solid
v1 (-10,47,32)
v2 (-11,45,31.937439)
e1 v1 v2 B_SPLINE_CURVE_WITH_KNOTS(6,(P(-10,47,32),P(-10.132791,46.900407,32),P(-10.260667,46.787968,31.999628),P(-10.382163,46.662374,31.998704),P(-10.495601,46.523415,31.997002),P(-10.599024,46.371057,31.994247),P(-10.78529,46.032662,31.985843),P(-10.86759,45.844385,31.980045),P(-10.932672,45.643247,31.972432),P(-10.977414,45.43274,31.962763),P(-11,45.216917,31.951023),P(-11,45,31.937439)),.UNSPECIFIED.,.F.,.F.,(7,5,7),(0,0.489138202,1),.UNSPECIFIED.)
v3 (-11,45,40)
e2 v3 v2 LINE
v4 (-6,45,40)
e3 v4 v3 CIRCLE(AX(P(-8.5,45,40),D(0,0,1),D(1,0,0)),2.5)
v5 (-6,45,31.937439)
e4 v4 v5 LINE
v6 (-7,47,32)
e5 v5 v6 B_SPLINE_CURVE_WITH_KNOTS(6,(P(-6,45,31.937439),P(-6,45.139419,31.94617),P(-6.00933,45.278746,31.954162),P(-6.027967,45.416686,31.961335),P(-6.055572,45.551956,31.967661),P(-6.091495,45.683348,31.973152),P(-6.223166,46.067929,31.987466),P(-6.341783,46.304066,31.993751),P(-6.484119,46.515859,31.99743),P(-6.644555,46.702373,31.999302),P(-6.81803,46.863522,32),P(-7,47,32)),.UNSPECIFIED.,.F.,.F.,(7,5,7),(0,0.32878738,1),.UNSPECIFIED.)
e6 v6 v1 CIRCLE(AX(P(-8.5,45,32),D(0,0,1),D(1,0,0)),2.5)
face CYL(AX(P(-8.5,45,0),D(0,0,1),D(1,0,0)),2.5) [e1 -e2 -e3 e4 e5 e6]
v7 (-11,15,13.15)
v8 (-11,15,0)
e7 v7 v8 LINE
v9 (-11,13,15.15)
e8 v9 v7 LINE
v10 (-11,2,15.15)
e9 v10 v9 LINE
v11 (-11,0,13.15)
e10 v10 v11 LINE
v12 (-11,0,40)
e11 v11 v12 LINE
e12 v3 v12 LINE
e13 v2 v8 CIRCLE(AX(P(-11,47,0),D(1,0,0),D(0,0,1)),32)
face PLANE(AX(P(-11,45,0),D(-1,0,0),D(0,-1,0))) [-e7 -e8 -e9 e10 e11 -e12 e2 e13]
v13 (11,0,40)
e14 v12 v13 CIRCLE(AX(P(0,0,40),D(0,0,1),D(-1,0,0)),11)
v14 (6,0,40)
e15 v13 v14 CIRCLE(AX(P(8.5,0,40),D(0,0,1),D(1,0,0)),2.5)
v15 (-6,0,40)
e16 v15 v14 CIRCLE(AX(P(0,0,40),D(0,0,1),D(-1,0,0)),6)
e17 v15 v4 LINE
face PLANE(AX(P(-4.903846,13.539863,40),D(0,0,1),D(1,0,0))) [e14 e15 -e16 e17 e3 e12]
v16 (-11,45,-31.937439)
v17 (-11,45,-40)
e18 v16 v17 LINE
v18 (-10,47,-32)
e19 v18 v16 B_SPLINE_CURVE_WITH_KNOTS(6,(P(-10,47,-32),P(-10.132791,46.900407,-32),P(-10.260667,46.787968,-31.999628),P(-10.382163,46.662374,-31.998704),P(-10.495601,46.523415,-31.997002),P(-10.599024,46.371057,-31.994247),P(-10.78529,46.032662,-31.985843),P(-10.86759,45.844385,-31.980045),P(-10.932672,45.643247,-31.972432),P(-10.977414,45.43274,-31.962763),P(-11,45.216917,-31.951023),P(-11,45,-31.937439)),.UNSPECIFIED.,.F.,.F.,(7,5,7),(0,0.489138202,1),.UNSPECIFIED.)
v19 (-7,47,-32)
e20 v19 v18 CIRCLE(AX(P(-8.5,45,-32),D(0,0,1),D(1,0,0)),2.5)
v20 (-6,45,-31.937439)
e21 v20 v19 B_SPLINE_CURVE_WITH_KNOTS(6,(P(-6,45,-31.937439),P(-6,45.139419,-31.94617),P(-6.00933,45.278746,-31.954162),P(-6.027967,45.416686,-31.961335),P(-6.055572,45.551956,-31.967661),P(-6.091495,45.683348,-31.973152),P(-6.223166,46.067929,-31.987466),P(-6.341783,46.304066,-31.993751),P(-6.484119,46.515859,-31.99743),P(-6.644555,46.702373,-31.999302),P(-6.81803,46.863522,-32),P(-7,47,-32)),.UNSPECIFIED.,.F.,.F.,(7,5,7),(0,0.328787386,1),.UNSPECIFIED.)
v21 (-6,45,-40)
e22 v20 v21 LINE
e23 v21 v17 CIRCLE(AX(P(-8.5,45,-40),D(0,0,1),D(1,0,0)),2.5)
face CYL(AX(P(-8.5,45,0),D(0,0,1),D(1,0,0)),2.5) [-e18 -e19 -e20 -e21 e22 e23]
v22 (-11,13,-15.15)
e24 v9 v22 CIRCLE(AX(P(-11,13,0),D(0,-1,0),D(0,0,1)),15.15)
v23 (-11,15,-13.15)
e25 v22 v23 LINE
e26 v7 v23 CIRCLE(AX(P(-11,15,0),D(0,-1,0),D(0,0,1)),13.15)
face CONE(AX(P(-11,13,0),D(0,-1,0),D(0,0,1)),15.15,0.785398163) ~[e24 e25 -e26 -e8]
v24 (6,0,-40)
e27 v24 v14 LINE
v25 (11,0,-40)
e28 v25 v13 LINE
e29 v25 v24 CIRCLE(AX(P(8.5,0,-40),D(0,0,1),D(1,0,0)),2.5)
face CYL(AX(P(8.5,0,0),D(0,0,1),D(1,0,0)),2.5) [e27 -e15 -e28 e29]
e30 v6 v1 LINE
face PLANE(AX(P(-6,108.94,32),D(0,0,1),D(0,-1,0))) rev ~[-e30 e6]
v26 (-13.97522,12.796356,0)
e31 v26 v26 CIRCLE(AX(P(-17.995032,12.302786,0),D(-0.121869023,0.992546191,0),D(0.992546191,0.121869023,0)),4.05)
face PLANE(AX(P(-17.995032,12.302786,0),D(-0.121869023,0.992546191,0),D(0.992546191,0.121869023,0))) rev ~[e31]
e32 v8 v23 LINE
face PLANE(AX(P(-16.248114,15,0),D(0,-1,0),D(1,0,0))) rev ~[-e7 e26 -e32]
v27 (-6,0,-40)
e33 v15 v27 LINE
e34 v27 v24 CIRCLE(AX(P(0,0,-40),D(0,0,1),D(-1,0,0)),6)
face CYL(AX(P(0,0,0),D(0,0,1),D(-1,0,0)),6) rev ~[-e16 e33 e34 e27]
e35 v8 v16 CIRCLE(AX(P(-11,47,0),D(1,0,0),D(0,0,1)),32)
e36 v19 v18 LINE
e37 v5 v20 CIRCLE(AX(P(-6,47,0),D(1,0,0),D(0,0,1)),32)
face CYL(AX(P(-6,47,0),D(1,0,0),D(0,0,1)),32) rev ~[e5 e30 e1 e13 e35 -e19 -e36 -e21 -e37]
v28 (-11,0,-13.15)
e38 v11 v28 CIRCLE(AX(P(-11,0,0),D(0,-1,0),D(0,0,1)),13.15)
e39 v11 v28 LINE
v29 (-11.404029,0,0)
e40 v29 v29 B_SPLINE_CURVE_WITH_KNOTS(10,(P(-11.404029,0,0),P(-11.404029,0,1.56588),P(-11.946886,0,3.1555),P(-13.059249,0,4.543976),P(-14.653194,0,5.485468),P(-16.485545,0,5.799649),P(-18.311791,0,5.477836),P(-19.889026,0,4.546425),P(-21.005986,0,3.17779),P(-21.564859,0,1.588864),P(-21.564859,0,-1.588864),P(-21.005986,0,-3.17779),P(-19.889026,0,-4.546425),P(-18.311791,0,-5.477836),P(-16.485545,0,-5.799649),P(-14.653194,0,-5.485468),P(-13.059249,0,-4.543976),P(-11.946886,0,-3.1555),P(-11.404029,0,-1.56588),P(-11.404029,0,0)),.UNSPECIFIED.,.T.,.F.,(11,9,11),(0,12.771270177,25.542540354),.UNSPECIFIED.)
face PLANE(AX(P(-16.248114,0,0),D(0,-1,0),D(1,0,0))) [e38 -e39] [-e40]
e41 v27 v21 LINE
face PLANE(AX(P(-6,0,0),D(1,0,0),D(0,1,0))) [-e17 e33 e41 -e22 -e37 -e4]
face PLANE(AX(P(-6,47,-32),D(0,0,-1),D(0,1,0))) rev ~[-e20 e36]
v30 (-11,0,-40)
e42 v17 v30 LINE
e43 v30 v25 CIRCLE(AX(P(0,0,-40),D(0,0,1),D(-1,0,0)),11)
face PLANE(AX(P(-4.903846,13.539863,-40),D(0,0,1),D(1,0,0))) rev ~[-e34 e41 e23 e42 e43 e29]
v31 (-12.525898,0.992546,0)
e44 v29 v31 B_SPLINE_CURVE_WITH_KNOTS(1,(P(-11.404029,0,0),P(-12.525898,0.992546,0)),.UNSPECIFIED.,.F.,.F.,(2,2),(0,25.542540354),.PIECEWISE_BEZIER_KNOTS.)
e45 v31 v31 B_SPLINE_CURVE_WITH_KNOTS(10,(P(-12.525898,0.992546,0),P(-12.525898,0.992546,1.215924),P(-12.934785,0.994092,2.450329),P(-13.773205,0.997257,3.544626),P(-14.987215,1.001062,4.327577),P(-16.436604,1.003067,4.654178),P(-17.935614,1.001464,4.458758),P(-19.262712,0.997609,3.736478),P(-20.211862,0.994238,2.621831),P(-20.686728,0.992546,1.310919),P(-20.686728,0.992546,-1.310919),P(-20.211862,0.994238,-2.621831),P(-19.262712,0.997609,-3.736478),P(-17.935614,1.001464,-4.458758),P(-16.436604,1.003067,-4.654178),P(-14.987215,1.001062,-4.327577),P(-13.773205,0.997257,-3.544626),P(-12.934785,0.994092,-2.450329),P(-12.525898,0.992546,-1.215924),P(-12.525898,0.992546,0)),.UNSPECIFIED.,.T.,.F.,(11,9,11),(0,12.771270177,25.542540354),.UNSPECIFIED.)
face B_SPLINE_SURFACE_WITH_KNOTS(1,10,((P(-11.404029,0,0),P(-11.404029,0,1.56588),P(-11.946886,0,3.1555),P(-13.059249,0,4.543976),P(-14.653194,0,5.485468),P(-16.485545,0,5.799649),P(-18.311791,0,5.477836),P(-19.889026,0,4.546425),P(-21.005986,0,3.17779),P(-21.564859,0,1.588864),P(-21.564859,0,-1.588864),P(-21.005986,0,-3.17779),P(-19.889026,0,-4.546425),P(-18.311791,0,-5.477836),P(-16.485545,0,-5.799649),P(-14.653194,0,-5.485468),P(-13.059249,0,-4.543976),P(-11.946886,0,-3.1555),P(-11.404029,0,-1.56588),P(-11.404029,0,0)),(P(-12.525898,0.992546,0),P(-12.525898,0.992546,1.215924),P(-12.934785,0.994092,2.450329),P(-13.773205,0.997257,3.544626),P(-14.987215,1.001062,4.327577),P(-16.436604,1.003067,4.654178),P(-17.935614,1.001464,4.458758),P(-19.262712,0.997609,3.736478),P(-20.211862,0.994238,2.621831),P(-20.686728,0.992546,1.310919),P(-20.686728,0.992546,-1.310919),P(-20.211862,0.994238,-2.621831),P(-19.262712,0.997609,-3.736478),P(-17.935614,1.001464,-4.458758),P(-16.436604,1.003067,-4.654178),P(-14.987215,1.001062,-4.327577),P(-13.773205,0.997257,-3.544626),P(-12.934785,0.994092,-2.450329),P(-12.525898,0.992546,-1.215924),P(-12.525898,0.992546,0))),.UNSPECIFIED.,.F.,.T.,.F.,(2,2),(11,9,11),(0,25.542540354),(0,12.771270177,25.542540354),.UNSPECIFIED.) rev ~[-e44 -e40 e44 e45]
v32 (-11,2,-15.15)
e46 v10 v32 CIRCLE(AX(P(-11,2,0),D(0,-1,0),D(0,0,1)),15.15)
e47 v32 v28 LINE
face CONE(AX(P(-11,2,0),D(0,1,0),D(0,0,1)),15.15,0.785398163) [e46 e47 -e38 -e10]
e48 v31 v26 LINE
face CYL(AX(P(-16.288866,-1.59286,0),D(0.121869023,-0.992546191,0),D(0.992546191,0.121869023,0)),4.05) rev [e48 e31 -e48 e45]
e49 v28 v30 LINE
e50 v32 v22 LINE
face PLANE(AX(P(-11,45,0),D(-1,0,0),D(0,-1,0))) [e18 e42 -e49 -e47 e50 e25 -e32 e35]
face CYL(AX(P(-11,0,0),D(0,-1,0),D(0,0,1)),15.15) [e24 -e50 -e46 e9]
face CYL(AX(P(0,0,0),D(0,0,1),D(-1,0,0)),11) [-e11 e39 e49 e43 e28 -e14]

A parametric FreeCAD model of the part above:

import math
import FreeCAD as App
import Part
import Sketcher
from FreeCAD import Vector
Q = App.Units.Quantity


def edges_at(feature, points):
    """Names of the edges that pass closest to the given points."""
    edges = feature.Shape.Edges
    near = lambda p: min(range(len(edges)), key=lambda i: edges[i].distToShape(Part.Vertex(*p))[0])
    return sorted({f"Edge{near(p) + 1}" for p in points})

doc = App.newDocument("Part")
body = doc.addObject("PartDesign::Body", "Body")

# Sketch on XY plane
sketch1 = body.newObject("Sketcher::SketchObject", "Sketch")
sketch1.AttachmentSupport = (doc.getObject("XY_Plane"), [""])
sketch1.MapMode = "FlatFace"
sketch1.addGeometry(Part.LineSegment(Vector(-11, 45, 0), Vector(-11, 0, 0)), False)
sketch1.addGeometry(Part.ArcOfCircle(Part.Circle(Vector(0, 0, 0), Vector(0, 0, 1), 11), math.radians(180), math.radians(360)), False)
sketch1.addGeometry(Part.ArcOfCircle(Part.Circle(Vector(8.5, 0, 0), Vector(0, 0, 1), 2.5), math.radians(0), math.radians(180)), False)
sketch1.addGeometry(Part.ArcOfCircle(Part.Circle(Vector(0, 0, 0), Vector(0, 0, 1), 6), math.radians(180), math.radians(360)), False)
sketch1.addGeometry(Part.LineSegment(Vector(-6, 0, 0), Vector(-6, 45, 0)), False)
sketch1.addGeometry(Part.ArcOfCircle(Part.Circle(Vector(-8.5, 45, 0), Vector(0, 0, 1), 2.5), math.radians(0), math.radians(180)), False)
sketch1.addConstraint(Sketcher.Constraint("Tangent", 0, 2, 1, 1))
sketch1.addConstraint(Sketcher.Constraint("Tangent", 1, 2, 2, 1))
sketch1.addConstraint(Sketcher.Constraint("Tangent", 2, 2, 3, 2))
sketch1.addConstraint(Sketcher.Constraint("Tangent", 3, 1, 4, 1))
sketch1.addConstraint(Sketcher.Constraint("Tangent", 4, 2, 5, 1))
sketch1.addConstraint(Sketcher.Constraint("Tangent", 5, 2, 0, 1))
sketch1.addConstraint(Sketcher.Constraint("Vertical", 0))
sketch1.addConstraint(Sketcher.Constraint("Vertical", 4))
sketch1.addConstraint(Sketcher.Constraint("Coincident", 1, 3, -1, 1))
sketch1.addConstraint(Sketcher.Constraint("Coincident", 3, 3, -1, 1))
sketch1.addConstraint(Sketcher.Constraint("PointOnObject", 2, 3, -1))
sketch1.addConstraint(Sketcher.Constraint("Radius", 1, Q("11 mm")))
sketch1.addConstraint(Sketcher.Constraint("Radius", 3, Q("6 mm")))
sketch1.addConstraint(Sketcher.Constraint("DistanceY", 0, 2, 0, 1, Q("45 mm")))
pad1 = body.newObject("PartDesign::Pad", "Pad")
pad1.Profile = sketch1
pad1.Length = 80
pad1.Midplane = True

# Sketch on XZ plane
sketch2 = body.newObject("Sketcher::SketchObject", "Sketch001")
sketch2.AttachmentSupport = (doc.getObject("XZ_Plane"), [""])
sketch2.MapMode = "FlatFace"
sketch2.addGeometry(Part.ArcOfCircle(Part.Circle(Vector(-11, 0, 0), Vector(0, 0, 1), 15), math.radians(90), math.radians(270)), False)
sketch2.addGeometry(Part.LineSegment(Vector(-11, -15, 0), Vector(-11, 15, 0)), False)
sketch2.addConstraint(Sketcher.Constraint("Coincident", 0, 1, 1, 2))
sketch2.addConstraint(Sketcher.Constraint("Coincident", 1, 1, 0, 2))
sketch2.addConstraint(Sketcher.Constraint("Vertical", 1))
sketch2.addConstraint(Sketcher.Constraint("PointOnObject", 0, 3, -1))
sketch2.addConstraint(Sketcher.Constraint("Radius", 0, Q("15.15 mm")))
sketch2.addConstraint(Sketcher.Constraint("DistanceX", 0, 3, -1, 1, Q("11 mm")))
sketch2.addConstraint(Sketcher.Constraint("DistanceX", 0, 1, -1, 1, Q("11 mm")))
pad2 = body.newObject("PartDesign::Pad", "Pad001")
pad2.Profile = sketch2
pad2.Length = 15
pad2.Reversed = True

# Sketch on YZ plane
sketch3 = body.newObject("Sketcher::SketchObject", "Sketch002")
sketch3.AttachmentSupport = (doc.getObject("YZ_Plane"), [""])
sketch3.MapMode = "FlatFace"
sketch3.AttachmentOffset = App.Placement(Vector(0, 0, -6), App.Rotation())
sketch3.addGeometry(Part.LineSegment(Vector(109, 32, 0), Vector(47, 32, 0)), False)
sketch3.addGeometry(Part.ArcOfCircle(Part.Circle(Vector(47, 0, 0), Vector(0, 0, 1), 32), math.radians(90), math.radians(270)), False)
sketch3.addGeometry(Part.LineSegment(Vector(47, -32, 0), Vector(109, -32, 0)), False)
sketch3.addGeometry(Part.LineSegment(Vector(109, -32, 0), Vector(109, 32, 0)), False)
sketch3.addConstraint(Sketcher.Constraint("Tangent", 0, 2, 1, 1))
sketch3.addConstraint(Sketcher.Constraint("Tangent", 1, 2, 2, 1))
sketch3.addConstraint(Sketcher.Constraint("Coincident", 2, 2, 3, 1))
sketch3.addConstraint(Sketcher.Constraint("Coincident", 3, 2, 0, 1))
sketch3.addConstraint(Sketcher.Constraint("Horizontal", 0))
sketch3.addConstraint(Sketcher.Constraint("Horizontal", 2))
sketch3.addConstraint(Sketcher.Constraint("Vertical", 3))
sketch3.addConstraint(Sketcher.Constraint("PointOnObject", 1, 3, -1))
sketch3.addConstraint(Sketcher.Constraint("Radius", 1, Q("32 mm")))
sketch3.addConstraint(Sketcher.Constraint("DistanceX", -1, 1, 1, 3, Q("47 mm")))
sketch3.addConstraint(Sketcher.Constraint("DistanceX", 0, 2, 0, 1, Q("61.94 mm")))
pocket1 = body.newObject("PartDesign::Pocket", "Pocket")
pocket1.Profile = sketch3
pocket1.Type = "ThroughAll"

# Sketch on an angled plane
sketch4 = body.newObject("Sketcher::SketchObject", "Sketch003")
sketch4.Placement = App.Placement(Vector(-3.316026, 0, 0), App.Rotation(Vector(0.992546191, 0.121869023, 0), Vector(0, 0, -1), Vector(-0.121869023, 0.992546191, 0), "ZXY"))
sketch4.addGeometry(Part.Circle(Vector(-13.1, 0, 0), Vector(0, 0, 1), 4), False)
sketch4.addConstraint(Sketcher.Constraint("PointOnObject", 0, 3, -1))
sketch4.addConstraint(Sketcher.Constraint("Diameter", 0, Q("8.1 mm")))
sketch4.addConstraint(Sketcher.Constraint("DistanceX", 0, 3, -1, 1, Q("13.070263 mm")))
pocket2 = body.newObject("PartDesign::Pocket", "Pocket001")
pocket2.Profile = sketch4
pocket2.Length = 14
pocket2.Reversed = True
doc.recompute()

chamfer = body.newObject("PartDesign::Chamfer", "Chamfer")
chamfer.Base = (pocket2, edges_at(pocket2, [(-26.15, 15, 0)]))
chamfer.Size = 2
doc.recompute()

chamfer2 = body.newObject("PartDesign::Chamfer", "Chamfer001")
chamfer2.Base = (chamfer, edges_at(chamfer, [(-26.15, 0, 0)]))
chamfer2.Size = 2
doc.recompute()

chamfer3 = body.newObject("PartDesign::Chamfer", "Chamfer002")
chamfer3.Base = (chamfer2, edges_at(chamfer2, [(-20.565, 0, 0)]))
chamfer3.Size = 1

doc.recompute()
